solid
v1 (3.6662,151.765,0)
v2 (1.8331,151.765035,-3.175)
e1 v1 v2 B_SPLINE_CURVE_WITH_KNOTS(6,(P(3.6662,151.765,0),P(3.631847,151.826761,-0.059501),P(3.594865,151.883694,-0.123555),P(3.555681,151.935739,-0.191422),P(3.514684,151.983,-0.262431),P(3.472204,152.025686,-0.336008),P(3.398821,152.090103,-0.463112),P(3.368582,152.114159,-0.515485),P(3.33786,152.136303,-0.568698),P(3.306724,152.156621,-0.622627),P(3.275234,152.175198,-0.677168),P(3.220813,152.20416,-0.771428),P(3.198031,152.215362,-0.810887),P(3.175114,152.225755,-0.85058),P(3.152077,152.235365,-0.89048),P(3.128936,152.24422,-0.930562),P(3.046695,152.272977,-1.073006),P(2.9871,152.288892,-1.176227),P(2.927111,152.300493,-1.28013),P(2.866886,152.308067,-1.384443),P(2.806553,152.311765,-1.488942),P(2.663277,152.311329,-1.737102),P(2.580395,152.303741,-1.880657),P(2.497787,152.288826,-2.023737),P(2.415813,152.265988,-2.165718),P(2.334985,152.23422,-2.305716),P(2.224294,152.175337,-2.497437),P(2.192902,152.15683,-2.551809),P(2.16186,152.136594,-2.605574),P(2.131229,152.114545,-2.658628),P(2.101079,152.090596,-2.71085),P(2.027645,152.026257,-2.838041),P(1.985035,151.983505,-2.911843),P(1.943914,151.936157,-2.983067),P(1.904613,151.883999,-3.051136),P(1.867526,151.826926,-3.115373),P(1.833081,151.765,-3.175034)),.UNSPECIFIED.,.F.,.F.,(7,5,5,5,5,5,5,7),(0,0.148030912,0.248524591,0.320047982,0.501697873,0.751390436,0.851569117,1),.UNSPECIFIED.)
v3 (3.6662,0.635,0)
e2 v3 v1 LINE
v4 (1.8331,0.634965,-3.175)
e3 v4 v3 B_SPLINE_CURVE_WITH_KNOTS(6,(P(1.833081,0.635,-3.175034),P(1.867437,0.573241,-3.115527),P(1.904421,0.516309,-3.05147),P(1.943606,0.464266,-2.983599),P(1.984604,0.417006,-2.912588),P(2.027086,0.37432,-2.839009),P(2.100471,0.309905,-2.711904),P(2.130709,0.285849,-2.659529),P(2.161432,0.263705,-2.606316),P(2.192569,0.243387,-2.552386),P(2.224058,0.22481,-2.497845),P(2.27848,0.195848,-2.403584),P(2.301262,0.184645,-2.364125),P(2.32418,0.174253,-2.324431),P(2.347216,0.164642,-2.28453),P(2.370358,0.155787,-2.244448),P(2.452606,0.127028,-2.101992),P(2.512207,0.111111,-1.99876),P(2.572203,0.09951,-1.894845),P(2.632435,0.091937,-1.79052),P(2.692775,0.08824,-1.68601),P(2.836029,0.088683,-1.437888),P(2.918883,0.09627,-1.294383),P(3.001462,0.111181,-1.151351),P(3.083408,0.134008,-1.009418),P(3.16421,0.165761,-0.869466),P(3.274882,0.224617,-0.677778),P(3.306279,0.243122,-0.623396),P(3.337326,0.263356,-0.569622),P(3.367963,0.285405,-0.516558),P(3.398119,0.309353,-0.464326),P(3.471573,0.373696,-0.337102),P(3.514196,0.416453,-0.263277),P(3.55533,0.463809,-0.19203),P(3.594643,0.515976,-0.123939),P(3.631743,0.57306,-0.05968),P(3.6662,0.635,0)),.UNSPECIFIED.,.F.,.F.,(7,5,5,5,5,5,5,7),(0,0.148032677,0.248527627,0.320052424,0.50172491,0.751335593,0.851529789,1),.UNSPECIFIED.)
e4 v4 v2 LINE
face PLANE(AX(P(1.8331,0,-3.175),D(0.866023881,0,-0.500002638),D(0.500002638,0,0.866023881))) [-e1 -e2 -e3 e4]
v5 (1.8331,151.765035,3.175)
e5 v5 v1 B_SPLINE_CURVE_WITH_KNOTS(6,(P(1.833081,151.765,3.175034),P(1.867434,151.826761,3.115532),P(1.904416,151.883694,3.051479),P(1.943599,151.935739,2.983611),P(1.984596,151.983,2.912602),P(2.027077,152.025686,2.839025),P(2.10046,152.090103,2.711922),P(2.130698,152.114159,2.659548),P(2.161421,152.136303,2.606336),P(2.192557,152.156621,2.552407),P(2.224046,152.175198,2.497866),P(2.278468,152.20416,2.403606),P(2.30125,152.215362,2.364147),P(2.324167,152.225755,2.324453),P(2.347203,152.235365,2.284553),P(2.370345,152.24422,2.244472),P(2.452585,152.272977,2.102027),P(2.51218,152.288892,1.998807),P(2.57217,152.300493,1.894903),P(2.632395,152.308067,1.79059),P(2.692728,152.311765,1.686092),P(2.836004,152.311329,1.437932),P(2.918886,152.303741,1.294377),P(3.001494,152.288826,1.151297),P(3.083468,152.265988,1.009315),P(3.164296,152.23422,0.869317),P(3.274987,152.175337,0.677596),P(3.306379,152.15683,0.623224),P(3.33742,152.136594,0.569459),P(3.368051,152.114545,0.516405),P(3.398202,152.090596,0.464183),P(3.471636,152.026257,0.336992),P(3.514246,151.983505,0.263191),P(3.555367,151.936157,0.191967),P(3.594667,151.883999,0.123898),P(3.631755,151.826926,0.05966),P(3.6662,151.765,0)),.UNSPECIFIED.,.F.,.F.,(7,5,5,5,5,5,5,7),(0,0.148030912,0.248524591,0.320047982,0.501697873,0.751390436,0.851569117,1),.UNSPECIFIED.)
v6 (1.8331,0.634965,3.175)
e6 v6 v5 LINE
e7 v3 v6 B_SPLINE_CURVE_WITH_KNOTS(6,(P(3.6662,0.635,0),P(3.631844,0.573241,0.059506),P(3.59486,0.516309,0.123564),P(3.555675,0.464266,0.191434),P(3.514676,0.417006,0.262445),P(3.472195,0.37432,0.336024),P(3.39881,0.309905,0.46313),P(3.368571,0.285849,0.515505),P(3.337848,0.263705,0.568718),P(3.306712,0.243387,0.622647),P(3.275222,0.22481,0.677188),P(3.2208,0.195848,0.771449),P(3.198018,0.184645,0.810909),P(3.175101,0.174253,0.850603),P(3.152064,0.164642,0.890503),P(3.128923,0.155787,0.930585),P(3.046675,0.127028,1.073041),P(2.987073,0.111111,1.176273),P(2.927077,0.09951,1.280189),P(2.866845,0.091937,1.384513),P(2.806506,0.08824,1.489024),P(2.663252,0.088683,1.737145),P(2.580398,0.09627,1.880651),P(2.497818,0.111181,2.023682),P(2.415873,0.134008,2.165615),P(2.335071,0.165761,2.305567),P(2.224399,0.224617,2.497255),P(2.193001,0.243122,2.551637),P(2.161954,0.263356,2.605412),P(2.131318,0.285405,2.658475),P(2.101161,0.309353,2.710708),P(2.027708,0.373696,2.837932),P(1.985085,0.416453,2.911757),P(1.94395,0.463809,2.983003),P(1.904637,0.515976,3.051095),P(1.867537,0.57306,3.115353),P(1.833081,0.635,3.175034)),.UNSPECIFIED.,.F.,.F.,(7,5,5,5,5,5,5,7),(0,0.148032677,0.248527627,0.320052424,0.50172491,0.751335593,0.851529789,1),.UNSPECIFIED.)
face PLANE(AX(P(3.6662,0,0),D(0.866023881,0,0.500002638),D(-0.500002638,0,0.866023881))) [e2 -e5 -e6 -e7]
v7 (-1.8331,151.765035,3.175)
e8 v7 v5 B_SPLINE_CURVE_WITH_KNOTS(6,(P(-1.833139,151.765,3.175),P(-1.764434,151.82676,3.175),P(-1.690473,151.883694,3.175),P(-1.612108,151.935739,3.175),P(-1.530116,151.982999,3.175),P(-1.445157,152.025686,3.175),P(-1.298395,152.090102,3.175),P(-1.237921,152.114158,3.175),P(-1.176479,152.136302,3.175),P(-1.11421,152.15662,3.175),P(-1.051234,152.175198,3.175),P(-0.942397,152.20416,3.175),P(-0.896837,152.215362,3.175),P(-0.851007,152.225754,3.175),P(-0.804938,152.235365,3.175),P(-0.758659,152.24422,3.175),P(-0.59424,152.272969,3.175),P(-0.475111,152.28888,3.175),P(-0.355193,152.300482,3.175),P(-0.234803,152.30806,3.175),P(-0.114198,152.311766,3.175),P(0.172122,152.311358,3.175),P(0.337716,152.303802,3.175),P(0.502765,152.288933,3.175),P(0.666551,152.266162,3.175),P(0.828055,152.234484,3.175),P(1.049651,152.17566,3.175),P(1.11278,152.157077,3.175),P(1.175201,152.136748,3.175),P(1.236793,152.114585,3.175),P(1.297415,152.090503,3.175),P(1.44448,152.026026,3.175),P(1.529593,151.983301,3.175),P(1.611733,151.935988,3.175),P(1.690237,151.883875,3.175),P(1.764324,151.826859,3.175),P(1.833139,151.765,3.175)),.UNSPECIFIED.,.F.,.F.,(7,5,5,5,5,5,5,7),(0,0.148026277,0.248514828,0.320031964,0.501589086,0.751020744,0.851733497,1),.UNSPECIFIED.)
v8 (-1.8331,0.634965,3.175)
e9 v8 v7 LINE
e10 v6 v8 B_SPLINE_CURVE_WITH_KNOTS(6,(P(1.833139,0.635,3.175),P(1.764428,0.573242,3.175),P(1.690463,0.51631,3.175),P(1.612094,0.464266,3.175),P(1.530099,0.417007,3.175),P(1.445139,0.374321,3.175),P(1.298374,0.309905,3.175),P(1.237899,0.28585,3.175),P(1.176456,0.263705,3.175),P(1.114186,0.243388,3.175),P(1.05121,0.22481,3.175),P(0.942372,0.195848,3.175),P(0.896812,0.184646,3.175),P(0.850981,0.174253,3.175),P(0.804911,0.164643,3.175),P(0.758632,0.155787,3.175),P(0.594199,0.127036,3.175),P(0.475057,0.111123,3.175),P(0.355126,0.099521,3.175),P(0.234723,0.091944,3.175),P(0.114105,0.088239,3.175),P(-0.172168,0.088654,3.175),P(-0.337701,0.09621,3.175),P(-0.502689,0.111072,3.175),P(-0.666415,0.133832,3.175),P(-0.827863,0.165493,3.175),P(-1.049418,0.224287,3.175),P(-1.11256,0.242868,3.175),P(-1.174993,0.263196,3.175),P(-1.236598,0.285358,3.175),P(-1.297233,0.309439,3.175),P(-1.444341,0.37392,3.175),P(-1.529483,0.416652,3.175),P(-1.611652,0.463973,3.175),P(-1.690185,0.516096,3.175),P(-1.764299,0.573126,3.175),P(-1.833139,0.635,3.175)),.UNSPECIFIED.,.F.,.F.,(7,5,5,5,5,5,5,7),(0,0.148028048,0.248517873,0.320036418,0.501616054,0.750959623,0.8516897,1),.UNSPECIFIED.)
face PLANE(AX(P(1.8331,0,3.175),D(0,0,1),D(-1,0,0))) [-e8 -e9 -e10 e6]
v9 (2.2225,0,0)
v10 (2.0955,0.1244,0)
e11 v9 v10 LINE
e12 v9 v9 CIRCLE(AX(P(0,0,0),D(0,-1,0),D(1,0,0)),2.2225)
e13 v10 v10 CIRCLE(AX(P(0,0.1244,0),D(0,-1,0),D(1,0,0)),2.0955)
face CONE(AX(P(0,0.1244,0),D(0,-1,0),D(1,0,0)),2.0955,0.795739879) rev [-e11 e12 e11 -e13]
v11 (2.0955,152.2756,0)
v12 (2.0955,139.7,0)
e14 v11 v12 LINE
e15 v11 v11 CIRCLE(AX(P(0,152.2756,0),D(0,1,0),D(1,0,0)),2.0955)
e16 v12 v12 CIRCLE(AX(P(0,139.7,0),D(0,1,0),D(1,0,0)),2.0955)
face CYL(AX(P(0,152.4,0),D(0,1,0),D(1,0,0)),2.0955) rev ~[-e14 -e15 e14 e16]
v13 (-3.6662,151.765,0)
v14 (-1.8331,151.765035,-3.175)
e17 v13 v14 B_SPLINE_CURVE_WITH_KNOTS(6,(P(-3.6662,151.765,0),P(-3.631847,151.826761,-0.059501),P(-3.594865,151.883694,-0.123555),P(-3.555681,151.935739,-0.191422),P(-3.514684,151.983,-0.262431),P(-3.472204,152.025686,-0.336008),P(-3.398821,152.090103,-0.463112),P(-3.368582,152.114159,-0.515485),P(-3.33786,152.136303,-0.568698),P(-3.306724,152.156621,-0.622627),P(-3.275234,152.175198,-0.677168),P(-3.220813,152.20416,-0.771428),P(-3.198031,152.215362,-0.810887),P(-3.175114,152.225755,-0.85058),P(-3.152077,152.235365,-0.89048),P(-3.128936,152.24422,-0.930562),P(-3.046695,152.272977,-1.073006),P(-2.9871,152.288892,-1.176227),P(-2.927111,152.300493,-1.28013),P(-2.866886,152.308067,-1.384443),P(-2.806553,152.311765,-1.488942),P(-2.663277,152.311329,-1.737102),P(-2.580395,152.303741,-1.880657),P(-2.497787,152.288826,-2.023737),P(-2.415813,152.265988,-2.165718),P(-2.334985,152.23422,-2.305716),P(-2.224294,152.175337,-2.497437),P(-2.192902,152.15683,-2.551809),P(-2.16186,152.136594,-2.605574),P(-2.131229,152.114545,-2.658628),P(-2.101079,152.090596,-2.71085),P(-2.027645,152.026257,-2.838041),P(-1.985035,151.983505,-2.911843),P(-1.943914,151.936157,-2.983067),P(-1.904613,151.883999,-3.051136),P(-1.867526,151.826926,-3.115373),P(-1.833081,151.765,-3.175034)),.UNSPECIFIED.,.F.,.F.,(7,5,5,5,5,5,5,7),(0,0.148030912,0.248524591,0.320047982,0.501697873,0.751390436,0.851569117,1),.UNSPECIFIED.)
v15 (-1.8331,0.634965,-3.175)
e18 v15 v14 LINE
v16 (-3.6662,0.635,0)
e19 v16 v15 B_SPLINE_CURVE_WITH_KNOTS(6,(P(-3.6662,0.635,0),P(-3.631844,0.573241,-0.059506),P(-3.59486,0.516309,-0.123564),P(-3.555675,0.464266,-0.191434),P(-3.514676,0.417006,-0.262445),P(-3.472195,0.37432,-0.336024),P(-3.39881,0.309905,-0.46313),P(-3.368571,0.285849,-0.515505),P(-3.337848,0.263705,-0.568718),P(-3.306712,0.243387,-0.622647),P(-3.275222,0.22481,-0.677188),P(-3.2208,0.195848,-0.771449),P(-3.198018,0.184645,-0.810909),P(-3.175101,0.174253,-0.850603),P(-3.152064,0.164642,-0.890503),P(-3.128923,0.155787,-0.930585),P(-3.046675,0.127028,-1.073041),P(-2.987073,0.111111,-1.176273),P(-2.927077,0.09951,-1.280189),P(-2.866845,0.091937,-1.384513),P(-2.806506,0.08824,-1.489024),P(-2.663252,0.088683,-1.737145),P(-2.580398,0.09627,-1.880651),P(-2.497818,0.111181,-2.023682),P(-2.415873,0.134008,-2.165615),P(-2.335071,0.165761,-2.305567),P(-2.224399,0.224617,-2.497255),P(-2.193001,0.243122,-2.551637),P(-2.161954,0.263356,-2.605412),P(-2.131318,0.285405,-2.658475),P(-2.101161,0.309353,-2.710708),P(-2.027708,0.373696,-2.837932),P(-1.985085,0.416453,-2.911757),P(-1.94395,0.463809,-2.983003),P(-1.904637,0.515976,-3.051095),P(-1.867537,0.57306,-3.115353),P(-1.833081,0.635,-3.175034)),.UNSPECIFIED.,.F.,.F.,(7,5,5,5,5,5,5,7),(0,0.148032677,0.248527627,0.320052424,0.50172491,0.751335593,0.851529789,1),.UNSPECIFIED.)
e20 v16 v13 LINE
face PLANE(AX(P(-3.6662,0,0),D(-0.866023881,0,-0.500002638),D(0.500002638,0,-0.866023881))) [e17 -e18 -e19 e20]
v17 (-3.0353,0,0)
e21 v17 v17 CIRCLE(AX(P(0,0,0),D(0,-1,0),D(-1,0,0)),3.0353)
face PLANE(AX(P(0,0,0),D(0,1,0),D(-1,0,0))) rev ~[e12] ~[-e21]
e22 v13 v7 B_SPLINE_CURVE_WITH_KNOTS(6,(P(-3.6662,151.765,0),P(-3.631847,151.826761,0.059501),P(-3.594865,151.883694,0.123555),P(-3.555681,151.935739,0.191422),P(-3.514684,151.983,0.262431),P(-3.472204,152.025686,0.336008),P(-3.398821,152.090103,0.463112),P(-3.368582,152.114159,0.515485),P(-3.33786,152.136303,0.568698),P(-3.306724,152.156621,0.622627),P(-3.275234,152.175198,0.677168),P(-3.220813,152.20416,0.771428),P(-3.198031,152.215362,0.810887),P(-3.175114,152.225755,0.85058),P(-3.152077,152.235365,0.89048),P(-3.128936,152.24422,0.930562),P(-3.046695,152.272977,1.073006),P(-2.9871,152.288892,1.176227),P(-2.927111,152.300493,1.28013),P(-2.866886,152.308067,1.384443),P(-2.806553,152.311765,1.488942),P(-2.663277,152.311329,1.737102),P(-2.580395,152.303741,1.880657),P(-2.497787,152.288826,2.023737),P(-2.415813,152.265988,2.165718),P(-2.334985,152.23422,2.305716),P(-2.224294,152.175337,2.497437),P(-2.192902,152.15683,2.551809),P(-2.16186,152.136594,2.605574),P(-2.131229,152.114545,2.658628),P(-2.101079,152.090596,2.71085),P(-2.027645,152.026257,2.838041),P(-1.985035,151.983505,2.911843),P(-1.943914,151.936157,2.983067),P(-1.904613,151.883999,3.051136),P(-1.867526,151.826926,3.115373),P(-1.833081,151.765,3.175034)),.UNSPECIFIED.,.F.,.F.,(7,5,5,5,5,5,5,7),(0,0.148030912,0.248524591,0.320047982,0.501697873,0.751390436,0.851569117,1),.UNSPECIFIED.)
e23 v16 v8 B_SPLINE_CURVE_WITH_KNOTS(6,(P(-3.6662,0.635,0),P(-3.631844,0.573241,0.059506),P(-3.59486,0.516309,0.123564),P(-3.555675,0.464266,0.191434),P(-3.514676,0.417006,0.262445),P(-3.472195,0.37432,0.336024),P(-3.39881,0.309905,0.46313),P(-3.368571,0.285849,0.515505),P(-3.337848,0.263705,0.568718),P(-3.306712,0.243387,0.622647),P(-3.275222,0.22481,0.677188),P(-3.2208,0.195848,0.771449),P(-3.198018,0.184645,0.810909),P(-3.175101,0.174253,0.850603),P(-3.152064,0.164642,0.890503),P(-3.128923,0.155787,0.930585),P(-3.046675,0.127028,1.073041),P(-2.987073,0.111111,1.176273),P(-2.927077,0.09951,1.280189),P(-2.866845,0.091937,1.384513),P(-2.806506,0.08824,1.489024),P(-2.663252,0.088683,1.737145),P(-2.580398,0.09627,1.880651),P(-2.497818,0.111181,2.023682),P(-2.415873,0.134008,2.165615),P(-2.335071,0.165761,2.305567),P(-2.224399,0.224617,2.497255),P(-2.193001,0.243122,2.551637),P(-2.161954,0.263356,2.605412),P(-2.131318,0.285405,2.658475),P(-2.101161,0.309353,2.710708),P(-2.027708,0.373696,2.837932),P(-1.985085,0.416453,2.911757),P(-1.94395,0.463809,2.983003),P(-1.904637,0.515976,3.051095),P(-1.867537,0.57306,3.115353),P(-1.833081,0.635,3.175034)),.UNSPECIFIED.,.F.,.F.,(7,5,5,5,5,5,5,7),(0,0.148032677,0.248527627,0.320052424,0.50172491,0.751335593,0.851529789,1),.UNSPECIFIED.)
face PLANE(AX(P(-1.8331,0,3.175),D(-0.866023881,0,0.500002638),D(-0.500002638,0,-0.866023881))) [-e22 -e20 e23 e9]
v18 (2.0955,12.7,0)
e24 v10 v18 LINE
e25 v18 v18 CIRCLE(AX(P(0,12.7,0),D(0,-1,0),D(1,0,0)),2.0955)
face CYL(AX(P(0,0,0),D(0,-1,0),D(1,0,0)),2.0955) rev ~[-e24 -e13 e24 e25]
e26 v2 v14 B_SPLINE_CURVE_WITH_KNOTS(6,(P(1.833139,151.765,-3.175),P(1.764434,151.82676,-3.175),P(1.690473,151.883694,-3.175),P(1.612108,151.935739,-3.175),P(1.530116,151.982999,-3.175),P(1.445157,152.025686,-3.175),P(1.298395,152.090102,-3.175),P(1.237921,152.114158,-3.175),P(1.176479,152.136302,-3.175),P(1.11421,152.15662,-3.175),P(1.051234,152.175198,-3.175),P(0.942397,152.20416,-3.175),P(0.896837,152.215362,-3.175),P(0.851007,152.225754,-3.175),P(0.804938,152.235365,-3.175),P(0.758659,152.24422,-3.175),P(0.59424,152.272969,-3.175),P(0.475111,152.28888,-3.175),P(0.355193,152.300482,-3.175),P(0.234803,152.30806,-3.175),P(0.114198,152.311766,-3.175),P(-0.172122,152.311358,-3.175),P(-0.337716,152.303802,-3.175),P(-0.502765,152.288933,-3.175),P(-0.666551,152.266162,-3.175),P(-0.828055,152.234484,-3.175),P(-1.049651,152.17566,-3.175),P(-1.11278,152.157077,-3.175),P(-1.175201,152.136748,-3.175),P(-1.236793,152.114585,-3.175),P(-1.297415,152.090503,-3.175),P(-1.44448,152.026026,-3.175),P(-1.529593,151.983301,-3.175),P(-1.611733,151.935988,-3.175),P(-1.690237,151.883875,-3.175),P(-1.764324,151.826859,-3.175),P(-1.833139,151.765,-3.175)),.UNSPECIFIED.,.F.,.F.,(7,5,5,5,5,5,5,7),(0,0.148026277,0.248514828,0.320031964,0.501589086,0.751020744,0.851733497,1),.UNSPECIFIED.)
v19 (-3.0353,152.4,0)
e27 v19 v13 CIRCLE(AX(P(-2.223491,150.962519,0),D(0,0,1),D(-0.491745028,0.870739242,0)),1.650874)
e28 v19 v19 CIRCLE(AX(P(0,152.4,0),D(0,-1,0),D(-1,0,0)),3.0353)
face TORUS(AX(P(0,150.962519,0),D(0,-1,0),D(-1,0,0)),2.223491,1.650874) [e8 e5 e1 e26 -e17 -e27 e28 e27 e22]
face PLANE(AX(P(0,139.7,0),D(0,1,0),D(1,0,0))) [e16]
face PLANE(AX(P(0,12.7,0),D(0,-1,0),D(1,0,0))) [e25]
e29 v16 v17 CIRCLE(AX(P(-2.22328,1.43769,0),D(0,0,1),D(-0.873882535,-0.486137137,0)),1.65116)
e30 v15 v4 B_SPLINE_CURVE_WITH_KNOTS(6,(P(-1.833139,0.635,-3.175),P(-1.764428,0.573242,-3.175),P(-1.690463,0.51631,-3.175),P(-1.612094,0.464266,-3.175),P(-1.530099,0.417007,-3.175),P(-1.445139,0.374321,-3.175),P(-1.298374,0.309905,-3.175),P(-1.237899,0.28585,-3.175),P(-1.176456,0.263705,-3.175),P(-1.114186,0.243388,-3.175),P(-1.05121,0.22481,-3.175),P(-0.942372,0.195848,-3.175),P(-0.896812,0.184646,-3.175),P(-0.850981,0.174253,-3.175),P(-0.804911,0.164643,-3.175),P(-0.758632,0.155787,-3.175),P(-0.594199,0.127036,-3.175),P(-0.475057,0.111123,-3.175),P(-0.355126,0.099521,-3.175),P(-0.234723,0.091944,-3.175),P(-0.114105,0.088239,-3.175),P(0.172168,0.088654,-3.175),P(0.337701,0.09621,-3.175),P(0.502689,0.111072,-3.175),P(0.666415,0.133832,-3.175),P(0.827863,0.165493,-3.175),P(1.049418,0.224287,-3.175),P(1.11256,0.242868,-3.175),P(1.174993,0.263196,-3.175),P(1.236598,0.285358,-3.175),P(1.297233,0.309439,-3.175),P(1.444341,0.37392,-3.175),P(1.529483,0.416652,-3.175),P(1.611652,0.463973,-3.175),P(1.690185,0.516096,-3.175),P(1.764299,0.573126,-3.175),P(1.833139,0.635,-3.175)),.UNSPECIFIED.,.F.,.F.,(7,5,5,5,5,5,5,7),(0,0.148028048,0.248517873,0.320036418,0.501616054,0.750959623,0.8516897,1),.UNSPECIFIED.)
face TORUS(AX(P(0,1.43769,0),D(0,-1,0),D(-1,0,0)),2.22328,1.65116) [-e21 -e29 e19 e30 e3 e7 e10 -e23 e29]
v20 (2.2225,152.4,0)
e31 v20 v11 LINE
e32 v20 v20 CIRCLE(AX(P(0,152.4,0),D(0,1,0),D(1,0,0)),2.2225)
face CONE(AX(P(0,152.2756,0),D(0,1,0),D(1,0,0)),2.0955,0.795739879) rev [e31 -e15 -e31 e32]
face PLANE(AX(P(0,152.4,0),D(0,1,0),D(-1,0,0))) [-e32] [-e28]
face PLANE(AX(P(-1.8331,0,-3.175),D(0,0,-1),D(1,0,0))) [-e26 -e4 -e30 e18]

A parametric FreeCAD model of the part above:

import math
import FreeCAD as App
import Part
import Sketcher
Q = App.Units.Quantity


def edges_at(feature, points):
    """Names of the edges that pass closest to the given points."""
    edges = feature.Shape.Edges
    near = lambda p: min(range(len(edges)), key=lambda i: edges[i].distToShape(Part.Vertex(*p))[0])
    return sorted({f"Edge{near(p) + 1}" for p in points})


def add_polygon(sketch, points):
    """Adds a closed chain of lines whose ends are joined by coincident constraints."""
    first, n = sketch.GeometryCount, len(points)
    for a, b in zip(points, points[1:] + points[:1]):
        sketch.addGeometry(Part.LineSegment(App.Vector(*a, 0), App.Vector(*b, 0)), False)
    for i in range(n):
        sketch.addConstraint(Sketcher.Constraint("Coincident", first + i, 2, first + (i + 1) % n, 1))

doc = App.newDocument("Part")
body = doc.addObject("PartDesign::Body", "Body")

# Sketch on XZ plane
sketch1 = doc.addObject("Sketcher::SketchObject", "Sketch")
body.addObject(sketch1)
sketch1.AttachmentSupport = (doc.XZ_Plane, [""])
sketch1.MapMode = "FlatFace"
add_polygon(sketch1, [(3.7, 0), (1.8, -3.2), (-1.8, -3.2), (-3.7, 0), (-1.8, 3.2), (1.8, 3.2)])  # lines 0-5
sketch1.addConstraint([
    Sketcher.Constraint("Horizontal", 1),
    Sketcher.Constraint("Horizontal", 4),
    Sketcher.Constraint("Symmetric", 0, 2, 3, 2, -1, 1),
    Sketcher.Constraint("Symmetric", 2, 2, 5, 2, -1, 1),
    Sketcher.Constraint("PointOnObject", 2, 2, -1),
    Sketcher.Constraint("Parallel", 2, 5),
    Sketcher.Constraint("Vertical", 1, 2, 3, 2),
    Sketcher.Constraint("DistanceY", 1, 2, 3, 2, Q("0.25 in")),
    Sketcher.Constraint("Angle", 0, Q("-120.0002 deg")),
    Sketcher.Constraint("DistanceX", 1, 2, 1, 1, Q("3.6662 mm")),
])
pad1 = doc.addObject("PartDesign::Pad", "Pad")
body.addObject(pad1)
pad1.Profile = sketch1
pad1.Length = Q("6 in")
pad1.Reversed = True

# Sketch on XZ plane
sketch2 = doc.addObject("Sketcher::SketchObject", "Sketch001")
body.addObject(sketch2)
sketch2.AttachmentSupport = (doc.XZ_Plane, [""])
sketch2.MapMode = "FlatFace"
sketch2.AttachmentOffset = App.Placement(App.Vector(0, 0, -6 * 25.4), App.Rotation())
sketch2.addGeometry(Part.Circle(App.Vector(0, 0, 0), App.Vector(0, 0, 1), 2.1), False)
sketch2.addConstraint([
    Sketcher.Constraint("Coincident", 0, 3, -1, 1),
    Sketcher.Constraint("Diameter", 0, Q("0.165 in")),
])
pocket1 = doc.addObject("PartDesign::Pocket", "Pocket")
body.addObject(pocket1)
pocket1.Profile = sketch2
pocket1.Length = Q("0.5 in")
pocket1.Reversed = True

# Sketch on XZ plane
sketch3 = doc.addObject("Sketcher::SketchObject", "Sketch002")
body.addObject(sketch3)
sketch3.AttachmentSupport = (doc.XZ_Plane, [""])
sketch3.MapMode = "FlatFace"
sketch3.addGeometry(Part.Circle(App.Vector(0, 0, 0), App.Vector(0, 0, 1), 2.1), False)
sketch3.addConstraint([
    Sketcher.Constraint("Coincident", 0, 3, -1, 1),
    Sketcher.Constraint("Diameter", 0, Q("0.165 in")),
])
pocket2 = doc.addObject("PartDesign::Pocket", "Pocket001")
body.addObject(pocket2)
pocket2.Profile = sketch3
pocket2.Length = Q("0.5 in")
doc.recompute()

chamfer = doc.addObject("PartDesign::Chamfer", "Chamfer")
body.addObject(chamfer)
chamfer.Base = (pocket2, edges_at(pocket2, [(-2.095, 152.4, 0)]))
chamfer.ChamferType = "Two distances"
chamfer.Size = Q("0.005 in")
chamfer.Size2 = Q("0.0048976 in")
doc.recompute()

chamfer2 = doc.addObject("PartDesign::Chamfer", "Chamfer001")
body.addObject(chamfer2)
chamfer2.Base = (chamfer, edges_at(chamfer, [(-2.095, 0, 0)]))
chamfer2.ChamferType = "Two distances"
chamfer2.Size = Q("0.005 in")
chamfer2.Size2 = Q("0.0048976 in")

# Sketch on XY plane
sketch4 = doc.addObject("Sketcher::SketchObject", "Sketch003")
body.addObject(sketch4)
sketch4.AttachmentSupport = (doc.XY_Plane, [""])
sketch4.MapMode = "FlatFace"
sketch4.addGeometry([
    Part.LineSegment(App.Vector(0, 152.4, 0), App.Vector(-6.4, 154.4, 0)),
    Part.LineSegment(App.Vector(-6.4, 154.4, 0), App.Vector(-3.7, 151.8, 0)),
    Part.ArcOfCircle(Part.Circle(App.Vector(-2.2, 151, 0), App.Vector(0, 0, 1), 1.7), math.radians(119), math.radians(151)),
    Part.LineSegment(App.Vector(-3, 152.4, 0), App.Vector(0, 152.4, 0)),
], False)
sketch4.addConstraint([
    Sketcher.Constraint("Coincident", 0, 2, 1, 1),
    Sketcher.Constraint("Coincident", 1, 2, 2, 2),
    Sketcher.Constraint("Coincident", 2, 1, 3, 1),
    Sketcher.Constraint("Coincident", 3, 2, 0, 1),
    Sketcher.Constraint("Horizontal", 3),
    Sketcher.Constraint("PointOnObject", 3, 2, -2),
    Sketcher.Constraint("Radius", 2, Q("0.065 in")),
    Sketcher.Constraint("DistanceX", 3, 1, 3, 2, Q("0.1195 in")),
    Sketcher.Constraint("DistanceY", -1, 1, 2, 1, Q("6 in")),
    Sketcher.Constraint("DistanceY", 1, 2, 2, 1, Q("0.025 in")),
    Sketcher.Constraint("Angle", 0, Q("162.8302 deg")),
    Sketcher.Constraint("DistanceX", 0, 2, 1, 2, Q("0.106 in")),
    Sketcher.Constraint("DistanceY", -1, 1, 2, 3, Q("5.9434 in")),
])
groove = doc.addObject("PartDesign::Groove", "Groove")
body.addObject(groove)
groove.Profile = sketch4
groove.ReferenceAxis = (sketch4, ["V_Axis"])
groove.Angle = 360

# Sketch on XY plane
sketch5 = doc.addObject("Sketcher::SketchObject", "Sketch004")
body.addObject(sketch5)
sketch5.AttachmentSupport = (doc.XY_Plane, [""])
sketch5.MapMode = "FlatFace"
sketch5.addGeometry([
    Part.LineSegment(App.Vector(-4.1, -0.9, 0), App.Vector(0, 0, 0)),
    Part.LineSegment(App.Vector(0, 0, 0), App.Vector(-3, 0, 0)),
    Part.ArcOfCircle(Part.Circle(App.Vector(-2.2, 1.4, 0), App.Vector(0, 0, 1), 1.7), math.radians(-151), math.radians(-119)),
    Part.LineSegment(App.Vector(-3.7, 0.6, 0), App.Vector(-4.1, -0.9, 0)),
], False)
sketch5.addConstraint([
    Sketcher.Constraint("Coincident", 0, 2, 1, 1),
    Sketcher.Constraint("Coincident", 1, 2, 2, 2),
    Sketcher.Constraint("Coincident", 2, 1, 3, 1),
    Sketcher.Constraint("Coincident", 3, 2, 0, 1),
    Sketcher.Constraint("Horizontal", 1),
    Sketcher.Constraint("Coincident", 0, 2, -1, 1),
    Sketcher.Constraint("Radius", 2, Q("0.065 in")),
    Sketcher.Constraint("DistanceX", 1, 2, 1, 1, Q("0.1195 in")),
    Sketcher.Constraint("DistanceY", -1, 1, 2, 1, Q("0.025 in")),
    Sketcher.Constraint("Distance", 3, Q("0.0619 in")),
    Sketcher.Constraint("DistanceY", -1, 1, 2, 3, Q("0.0566 in")),
    Sketcher.Constraint("DistanceY", 3, 2, -1, 1, Q("0.0343 in")),
])
groove2 = doc.addObject("PartDesign::Groove", "Groove001")
body.addObject(groove2)
groove2.Profile = sketch5
groove2.ReferenceAxis = (sketch5, ["V_Axis"])
groove2.Angle = 360

doc.recompute()
